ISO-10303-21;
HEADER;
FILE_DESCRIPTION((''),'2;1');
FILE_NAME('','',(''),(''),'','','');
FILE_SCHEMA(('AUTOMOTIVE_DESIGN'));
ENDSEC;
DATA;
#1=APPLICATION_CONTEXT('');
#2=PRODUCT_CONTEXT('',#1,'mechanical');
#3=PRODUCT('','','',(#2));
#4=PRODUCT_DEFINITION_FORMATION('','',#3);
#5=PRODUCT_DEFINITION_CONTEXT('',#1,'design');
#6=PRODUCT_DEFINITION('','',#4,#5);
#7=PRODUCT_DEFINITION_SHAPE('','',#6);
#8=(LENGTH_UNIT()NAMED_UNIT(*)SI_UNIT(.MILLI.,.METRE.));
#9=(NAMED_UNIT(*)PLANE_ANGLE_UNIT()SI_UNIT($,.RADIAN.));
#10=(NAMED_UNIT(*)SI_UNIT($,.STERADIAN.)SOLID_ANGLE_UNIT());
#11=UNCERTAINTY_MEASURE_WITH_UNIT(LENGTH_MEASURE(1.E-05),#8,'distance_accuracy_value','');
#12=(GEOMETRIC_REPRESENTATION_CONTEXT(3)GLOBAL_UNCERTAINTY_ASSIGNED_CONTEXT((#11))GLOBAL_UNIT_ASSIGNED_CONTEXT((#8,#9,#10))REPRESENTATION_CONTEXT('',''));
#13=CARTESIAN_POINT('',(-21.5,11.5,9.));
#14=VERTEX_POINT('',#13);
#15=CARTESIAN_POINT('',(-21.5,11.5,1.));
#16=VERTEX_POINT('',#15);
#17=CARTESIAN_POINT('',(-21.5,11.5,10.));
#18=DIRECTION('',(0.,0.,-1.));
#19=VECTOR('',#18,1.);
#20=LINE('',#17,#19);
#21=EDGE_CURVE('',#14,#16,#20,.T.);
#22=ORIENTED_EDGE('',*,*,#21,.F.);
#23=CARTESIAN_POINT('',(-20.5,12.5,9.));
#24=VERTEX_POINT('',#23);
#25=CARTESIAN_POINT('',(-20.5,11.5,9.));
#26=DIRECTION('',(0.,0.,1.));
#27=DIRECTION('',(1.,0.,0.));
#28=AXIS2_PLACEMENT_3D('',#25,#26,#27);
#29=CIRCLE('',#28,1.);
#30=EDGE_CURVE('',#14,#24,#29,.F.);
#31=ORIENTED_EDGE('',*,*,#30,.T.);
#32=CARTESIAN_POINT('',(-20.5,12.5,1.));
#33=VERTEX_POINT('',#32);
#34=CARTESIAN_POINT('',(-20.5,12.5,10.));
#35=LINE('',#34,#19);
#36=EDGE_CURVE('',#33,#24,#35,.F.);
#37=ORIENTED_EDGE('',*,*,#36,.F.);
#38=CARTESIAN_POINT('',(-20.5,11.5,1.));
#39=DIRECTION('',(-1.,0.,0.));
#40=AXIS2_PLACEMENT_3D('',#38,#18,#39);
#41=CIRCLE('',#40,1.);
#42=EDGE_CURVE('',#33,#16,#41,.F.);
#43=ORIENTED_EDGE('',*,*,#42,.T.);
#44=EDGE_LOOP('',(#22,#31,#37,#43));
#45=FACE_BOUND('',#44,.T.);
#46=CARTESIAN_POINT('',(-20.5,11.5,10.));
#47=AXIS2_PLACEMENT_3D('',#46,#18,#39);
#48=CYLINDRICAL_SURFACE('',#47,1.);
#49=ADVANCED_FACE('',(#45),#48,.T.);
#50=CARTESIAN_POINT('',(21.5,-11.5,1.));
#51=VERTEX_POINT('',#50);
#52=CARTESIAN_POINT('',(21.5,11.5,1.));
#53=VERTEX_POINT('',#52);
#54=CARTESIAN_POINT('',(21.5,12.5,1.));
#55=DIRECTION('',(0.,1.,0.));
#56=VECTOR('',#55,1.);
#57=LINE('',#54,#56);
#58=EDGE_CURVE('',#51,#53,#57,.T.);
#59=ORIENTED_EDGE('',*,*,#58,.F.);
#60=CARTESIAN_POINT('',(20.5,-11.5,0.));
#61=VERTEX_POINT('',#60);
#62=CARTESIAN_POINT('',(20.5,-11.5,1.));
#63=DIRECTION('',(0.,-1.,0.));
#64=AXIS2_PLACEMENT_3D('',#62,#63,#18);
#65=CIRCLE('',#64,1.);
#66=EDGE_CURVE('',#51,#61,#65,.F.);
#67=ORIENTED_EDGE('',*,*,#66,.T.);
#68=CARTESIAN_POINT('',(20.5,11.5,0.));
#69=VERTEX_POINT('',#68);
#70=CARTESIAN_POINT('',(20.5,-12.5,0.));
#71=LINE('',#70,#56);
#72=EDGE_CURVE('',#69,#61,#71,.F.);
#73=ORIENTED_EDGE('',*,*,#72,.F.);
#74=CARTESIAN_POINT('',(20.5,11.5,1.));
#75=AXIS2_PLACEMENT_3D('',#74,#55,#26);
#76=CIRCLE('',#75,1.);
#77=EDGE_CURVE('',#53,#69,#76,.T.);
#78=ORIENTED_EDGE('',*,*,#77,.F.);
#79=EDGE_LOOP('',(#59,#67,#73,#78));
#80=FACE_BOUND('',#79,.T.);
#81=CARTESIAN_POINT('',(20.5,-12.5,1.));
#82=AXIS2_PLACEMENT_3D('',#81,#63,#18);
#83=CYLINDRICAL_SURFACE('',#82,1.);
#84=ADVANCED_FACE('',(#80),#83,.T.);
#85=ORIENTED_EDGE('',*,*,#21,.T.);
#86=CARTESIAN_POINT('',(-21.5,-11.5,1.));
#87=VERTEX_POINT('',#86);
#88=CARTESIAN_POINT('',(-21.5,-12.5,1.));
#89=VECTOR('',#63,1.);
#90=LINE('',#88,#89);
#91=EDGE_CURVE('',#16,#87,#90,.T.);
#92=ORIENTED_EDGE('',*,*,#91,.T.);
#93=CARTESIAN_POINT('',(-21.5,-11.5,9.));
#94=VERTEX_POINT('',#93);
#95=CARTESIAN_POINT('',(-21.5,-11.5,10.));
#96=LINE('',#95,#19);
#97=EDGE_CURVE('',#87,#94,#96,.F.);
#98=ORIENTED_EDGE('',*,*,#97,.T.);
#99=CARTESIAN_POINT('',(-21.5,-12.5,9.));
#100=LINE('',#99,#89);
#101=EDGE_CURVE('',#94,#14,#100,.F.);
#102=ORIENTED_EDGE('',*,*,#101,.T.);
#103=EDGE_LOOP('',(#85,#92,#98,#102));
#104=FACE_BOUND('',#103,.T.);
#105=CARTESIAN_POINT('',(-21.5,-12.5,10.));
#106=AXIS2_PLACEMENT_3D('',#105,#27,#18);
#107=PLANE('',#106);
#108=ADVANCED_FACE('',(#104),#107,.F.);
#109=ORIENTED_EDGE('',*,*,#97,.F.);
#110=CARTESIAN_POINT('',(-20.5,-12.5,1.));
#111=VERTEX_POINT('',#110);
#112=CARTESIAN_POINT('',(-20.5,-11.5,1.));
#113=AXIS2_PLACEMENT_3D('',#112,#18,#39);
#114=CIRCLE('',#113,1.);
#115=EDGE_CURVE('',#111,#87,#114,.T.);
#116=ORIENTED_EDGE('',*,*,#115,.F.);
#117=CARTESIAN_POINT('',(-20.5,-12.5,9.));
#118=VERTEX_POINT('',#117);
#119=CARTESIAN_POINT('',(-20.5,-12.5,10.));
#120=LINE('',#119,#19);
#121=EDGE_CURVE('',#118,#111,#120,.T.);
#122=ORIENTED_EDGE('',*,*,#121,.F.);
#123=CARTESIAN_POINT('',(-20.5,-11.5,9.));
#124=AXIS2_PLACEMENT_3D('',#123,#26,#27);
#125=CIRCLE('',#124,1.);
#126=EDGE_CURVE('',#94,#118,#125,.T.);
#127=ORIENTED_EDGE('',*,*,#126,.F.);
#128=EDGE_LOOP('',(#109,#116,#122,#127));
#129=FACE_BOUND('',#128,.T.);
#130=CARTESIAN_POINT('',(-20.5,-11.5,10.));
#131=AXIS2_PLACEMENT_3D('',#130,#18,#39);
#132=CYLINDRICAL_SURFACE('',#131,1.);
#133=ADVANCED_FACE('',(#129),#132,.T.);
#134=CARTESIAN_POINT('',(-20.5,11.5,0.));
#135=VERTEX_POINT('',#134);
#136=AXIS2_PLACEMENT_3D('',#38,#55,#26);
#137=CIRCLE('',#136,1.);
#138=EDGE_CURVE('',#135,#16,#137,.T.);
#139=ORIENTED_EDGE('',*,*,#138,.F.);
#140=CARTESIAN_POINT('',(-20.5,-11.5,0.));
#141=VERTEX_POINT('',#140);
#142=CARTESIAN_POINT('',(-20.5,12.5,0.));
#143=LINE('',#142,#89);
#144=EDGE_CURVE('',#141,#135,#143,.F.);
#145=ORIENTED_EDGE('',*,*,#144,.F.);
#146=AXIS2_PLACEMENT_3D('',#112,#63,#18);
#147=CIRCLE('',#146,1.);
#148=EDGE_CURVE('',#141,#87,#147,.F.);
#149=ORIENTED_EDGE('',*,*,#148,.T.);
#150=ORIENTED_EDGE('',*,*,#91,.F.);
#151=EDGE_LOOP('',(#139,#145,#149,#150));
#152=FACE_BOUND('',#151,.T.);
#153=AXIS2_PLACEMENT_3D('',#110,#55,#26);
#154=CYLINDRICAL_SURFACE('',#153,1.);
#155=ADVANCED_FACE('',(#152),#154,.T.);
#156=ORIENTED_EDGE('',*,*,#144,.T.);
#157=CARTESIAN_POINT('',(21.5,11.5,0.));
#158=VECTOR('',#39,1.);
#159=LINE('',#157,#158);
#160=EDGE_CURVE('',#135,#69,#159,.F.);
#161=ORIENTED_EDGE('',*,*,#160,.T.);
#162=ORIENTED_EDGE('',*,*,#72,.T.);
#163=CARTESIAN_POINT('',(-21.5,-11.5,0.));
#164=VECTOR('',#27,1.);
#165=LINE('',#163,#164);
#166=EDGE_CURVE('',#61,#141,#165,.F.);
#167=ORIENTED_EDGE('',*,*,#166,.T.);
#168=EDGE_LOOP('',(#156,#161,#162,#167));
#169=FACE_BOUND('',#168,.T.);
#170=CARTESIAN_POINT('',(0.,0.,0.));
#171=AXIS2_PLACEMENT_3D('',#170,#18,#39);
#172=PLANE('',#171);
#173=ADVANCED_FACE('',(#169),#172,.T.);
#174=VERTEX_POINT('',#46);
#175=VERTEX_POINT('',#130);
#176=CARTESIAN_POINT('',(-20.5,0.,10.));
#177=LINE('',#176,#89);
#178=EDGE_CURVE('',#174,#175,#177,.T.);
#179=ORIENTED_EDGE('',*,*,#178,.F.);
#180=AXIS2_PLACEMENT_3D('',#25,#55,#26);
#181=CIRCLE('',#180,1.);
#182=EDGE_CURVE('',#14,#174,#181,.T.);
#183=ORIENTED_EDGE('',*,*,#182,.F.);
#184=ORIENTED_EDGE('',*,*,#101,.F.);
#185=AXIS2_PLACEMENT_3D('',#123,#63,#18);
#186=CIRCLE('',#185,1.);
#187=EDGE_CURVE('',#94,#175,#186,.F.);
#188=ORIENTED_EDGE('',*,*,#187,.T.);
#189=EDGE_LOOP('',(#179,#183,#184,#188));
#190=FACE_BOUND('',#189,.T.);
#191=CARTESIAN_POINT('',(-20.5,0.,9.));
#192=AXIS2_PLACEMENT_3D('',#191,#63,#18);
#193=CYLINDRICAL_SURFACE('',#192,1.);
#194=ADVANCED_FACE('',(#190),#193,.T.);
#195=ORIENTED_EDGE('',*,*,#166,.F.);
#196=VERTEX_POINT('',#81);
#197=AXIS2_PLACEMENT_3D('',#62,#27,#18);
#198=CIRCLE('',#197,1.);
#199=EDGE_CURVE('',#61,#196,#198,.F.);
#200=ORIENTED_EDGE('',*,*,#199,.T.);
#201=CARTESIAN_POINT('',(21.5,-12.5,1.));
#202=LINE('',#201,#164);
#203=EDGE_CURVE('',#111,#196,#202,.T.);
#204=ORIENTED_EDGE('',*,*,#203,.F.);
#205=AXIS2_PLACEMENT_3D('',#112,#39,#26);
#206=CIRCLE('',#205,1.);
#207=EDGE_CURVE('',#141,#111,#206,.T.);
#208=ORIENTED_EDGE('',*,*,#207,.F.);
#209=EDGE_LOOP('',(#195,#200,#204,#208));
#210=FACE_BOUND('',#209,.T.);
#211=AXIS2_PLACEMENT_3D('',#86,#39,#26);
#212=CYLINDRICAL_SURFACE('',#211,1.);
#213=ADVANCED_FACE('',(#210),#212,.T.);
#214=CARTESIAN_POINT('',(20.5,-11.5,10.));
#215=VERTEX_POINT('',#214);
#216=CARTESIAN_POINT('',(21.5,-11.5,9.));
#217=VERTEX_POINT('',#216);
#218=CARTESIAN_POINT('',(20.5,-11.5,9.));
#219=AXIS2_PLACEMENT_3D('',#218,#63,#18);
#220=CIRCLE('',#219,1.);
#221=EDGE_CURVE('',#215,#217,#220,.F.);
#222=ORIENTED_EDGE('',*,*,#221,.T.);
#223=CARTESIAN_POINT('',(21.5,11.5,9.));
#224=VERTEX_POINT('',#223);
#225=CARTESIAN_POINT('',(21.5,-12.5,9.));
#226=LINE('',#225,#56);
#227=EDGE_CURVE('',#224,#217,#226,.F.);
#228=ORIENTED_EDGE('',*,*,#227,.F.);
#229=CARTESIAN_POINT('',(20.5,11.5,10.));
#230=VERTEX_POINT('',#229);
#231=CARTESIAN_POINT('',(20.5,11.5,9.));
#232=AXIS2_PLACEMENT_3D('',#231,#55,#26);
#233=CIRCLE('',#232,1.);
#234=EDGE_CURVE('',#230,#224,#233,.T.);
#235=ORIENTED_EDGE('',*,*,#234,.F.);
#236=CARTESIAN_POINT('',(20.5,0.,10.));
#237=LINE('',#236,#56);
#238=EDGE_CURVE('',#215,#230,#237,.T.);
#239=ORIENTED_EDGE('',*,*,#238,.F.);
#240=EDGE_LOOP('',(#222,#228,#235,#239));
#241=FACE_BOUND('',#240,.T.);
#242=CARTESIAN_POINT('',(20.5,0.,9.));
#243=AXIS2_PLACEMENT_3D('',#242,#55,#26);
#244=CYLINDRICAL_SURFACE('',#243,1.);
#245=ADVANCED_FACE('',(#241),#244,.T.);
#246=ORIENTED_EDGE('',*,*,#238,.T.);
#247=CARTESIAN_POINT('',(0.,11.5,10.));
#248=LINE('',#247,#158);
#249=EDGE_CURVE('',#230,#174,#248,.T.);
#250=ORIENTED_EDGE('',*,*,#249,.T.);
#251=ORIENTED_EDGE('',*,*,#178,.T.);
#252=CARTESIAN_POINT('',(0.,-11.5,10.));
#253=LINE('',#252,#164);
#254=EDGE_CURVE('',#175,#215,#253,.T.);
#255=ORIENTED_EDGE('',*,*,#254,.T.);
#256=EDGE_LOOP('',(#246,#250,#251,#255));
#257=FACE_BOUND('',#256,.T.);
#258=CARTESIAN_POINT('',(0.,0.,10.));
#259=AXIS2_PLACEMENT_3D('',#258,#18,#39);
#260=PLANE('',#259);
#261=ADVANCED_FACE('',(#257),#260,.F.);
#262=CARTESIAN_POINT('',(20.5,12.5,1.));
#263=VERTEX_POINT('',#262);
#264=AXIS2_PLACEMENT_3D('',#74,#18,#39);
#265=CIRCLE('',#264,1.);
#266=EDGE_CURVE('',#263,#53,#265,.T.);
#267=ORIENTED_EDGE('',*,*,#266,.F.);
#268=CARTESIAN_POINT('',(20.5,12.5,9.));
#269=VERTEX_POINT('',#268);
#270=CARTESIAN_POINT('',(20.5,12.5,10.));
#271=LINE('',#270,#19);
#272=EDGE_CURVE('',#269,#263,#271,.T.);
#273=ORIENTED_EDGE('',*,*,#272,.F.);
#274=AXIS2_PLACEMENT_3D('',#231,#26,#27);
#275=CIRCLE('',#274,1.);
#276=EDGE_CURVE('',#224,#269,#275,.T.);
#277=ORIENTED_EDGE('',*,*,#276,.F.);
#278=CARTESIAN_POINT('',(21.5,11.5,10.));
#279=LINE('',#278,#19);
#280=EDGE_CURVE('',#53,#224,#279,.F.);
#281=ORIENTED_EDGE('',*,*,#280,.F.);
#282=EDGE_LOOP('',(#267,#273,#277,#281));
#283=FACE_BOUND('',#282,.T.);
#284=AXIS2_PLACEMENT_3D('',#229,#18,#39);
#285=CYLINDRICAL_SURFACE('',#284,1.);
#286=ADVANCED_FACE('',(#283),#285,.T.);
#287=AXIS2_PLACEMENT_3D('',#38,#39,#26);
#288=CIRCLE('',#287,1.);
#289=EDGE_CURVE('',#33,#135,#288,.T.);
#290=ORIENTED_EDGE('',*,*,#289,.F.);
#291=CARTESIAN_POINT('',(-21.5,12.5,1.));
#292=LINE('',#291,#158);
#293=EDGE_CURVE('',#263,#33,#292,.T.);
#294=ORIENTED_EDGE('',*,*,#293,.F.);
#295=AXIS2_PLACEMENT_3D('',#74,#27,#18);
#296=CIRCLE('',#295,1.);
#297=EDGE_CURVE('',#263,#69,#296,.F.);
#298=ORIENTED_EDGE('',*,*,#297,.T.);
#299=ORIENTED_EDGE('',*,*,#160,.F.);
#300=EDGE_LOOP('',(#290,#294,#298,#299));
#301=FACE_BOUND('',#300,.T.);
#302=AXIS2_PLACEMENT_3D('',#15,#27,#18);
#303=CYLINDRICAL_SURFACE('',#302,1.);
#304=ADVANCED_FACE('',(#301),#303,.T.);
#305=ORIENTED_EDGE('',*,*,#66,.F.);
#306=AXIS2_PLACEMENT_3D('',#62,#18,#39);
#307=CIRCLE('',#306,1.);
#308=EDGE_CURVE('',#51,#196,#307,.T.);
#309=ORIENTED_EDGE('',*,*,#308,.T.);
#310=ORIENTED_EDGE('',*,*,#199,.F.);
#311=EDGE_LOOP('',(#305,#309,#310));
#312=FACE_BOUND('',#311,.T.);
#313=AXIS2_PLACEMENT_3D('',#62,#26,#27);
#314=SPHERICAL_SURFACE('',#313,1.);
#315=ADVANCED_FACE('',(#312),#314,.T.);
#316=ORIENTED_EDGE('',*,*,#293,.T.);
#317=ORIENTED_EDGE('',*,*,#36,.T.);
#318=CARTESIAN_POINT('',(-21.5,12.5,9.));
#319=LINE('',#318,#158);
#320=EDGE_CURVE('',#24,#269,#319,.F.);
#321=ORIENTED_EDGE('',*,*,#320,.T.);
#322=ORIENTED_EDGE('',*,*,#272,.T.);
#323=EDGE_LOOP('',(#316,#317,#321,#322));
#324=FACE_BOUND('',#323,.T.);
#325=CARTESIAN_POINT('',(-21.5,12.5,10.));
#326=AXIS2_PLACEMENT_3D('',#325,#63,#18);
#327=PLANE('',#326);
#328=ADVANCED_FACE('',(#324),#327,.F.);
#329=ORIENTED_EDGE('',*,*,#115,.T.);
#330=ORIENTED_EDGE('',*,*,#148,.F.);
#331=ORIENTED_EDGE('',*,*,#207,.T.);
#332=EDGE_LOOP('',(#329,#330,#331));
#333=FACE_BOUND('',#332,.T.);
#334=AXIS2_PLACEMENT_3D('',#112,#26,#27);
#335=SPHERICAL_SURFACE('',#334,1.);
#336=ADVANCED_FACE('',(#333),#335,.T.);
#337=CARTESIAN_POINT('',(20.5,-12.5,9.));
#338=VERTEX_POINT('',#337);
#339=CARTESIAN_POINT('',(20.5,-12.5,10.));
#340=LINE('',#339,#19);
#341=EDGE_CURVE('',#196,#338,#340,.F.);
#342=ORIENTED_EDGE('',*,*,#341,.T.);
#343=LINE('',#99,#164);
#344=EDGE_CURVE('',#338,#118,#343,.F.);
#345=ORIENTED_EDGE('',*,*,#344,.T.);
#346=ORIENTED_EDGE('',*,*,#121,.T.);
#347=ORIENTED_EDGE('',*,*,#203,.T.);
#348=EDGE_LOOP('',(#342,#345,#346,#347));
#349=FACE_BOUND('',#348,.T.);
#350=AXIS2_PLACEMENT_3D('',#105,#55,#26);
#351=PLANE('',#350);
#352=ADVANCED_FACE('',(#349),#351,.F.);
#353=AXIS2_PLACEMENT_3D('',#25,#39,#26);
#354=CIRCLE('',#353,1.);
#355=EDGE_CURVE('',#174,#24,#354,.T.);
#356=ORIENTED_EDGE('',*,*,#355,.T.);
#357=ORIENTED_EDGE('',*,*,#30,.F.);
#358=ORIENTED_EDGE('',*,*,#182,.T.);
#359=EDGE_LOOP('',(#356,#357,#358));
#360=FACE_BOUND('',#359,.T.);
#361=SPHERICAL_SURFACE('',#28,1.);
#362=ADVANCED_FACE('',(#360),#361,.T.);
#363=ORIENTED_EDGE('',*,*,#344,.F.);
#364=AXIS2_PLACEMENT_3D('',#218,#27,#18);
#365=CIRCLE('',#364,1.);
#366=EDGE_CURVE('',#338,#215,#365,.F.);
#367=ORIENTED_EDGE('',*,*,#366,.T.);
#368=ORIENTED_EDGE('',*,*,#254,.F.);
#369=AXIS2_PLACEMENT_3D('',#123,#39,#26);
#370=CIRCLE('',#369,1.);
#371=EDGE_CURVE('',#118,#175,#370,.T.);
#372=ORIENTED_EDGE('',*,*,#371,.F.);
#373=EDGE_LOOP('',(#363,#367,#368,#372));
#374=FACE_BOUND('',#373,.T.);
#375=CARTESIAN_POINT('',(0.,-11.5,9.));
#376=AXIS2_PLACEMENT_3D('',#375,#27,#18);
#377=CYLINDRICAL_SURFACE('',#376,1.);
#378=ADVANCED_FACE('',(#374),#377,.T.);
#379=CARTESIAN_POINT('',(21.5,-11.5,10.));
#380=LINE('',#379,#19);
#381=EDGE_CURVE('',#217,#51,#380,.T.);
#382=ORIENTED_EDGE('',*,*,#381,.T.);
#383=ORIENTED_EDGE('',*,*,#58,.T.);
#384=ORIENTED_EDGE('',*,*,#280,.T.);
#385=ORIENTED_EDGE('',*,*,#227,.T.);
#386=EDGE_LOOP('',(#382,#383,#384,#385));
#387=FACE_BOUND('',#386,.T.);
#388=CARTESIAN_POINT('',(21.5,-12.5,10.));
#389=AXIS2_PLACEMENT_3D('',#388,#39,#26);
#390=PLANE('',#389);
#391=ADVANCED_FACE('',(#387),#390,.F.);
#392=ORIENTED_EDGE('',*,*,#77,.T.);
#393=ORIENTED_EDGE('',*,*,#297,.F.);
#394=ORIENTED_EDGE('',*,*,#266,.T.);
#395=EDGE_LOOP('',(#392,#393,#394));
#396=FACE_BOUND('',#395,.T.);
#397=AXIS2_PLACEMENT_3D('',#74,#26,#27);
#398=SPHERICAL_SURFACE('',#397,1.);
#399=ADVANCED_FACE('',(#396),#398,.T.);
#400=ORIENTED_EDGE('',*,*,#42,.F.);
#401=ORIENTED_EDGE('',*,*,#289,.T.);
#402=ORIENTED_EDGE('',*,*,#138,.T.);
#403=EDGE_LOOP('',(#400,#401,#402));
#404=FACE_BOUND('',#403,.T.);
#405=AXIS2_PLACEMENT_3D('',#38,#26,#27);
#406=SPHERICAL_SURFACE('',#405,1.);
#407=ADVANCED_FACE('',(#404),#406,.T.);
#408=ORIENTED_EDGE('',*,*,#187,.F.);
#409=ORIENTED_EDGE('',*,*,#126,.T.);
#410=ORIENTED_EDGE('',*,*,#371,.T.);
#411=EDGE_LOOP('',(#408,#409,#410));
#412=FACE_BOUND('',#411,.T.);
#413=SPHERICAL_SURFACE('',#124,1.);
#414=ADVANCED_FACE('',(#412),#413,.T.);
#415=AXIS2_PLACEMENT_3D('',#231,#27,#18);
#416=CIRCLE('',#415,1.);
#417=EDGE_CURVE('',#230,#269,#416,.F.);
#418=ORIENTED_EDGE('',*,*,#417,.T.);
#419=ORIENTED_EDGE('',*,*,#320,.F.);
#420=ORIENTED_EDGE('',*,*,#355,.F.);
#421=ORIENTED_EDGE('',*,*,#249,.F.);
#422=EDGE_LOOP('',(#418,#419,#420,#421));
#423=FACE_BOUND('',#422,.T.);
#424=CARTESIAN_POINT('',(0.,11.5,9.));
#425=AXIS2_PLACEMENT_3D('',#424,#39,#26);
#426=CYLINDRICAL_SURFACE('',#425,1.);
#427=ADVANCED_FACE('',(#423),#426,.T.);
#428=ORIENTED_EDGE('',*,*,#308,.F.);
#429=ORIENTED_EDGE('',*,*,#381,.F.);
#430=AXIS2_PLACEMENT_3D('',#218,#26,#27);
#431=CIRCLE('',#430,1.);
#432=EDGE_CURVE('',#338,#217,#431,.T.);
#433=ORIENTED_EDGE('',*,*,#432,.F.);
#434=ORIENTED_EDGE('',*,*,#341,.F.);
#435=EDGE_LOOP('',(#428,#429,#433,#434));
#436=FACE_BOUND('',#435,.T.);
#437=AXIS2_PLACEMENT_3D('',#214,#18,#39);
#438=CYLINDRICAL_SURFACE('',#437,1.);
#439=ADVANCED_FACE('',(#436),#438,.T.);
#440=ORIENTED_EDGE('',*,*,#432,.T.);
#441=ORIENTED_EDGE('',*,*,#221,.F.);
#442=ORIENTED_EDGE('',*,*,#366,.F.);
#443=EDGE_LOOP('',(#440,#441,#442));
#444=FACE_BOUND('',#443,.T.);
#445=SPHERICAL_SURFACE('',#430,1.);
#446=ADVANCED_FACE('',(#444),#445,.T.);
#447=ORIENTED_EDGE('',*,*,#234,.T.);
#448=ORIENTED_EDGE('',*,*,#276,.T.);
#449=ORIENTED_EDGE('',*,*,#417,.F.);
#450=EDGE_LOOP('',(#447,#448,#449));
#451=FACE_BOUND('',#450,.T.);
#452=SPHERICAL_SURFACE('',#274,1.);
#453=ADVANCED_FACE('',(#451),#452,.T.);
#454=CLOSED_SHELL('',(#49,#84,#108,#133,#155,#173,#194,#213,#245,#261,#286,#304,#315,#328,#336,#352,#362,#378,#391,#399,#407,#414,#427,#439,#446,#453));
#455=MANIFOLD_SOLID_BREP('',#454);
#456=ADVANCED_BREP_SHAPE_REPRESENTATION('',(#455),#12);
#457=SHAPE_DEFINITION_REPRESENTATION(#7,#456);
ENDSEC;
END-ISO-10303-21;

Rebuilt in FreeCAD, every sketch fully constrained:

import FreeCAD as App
import Part
import Sketcher
from FreeCAD import Vector


def add_polygon(sketch, points):
    """Adds a closed chain of lines whose ends are joined by coincident constraints."""
    first, n = sketch.GeometryCount, len(points)
    for a, b in zip(points, points[1:] + points[:1]):
        sketch.addGeometry(Part.LineSegment(App.Vector(*a, 0), App.Vector(*b, 0)), False)
    for i in range(n):
        sketch.addConstraint(Sketcher.Constraint("Coincident", first + i, 2, first + (i + 1) % n, 1))

doc = App.newDocument("Part")
body = doc.addObject("PartDesign::Body", "Body")

# Sketch on XY plane
sketch1 = body.newObject("Sketcher::SketchObject", "Sketch")
sketch1.AttachmentSupport = (doc.getObject("XY_Plane"), [""])
sketch1.MapMode = "FlatFace"
add_polygon(sketch1, [(-21.5, 12.5), (-21.5, -12.5), (21.5, -12.5), (21.5, 12.5)])  # lines 0-3
sketch1.addConstraint(Sketcher.Constraint("Vertical", 0))
sketch1.addConstraint(Sketcher.Constraint("Horizontal", 1))
sketch1.addConstraint(Sketcher.Constraint("Vertical", 2))
sketch1.addConstraint(Sketcher.Constraint("Horizontal", 3))
sketch1.addConstraint(Sketcher.Constraint("Symmetric", 0, 2, 2, 2, -1, 1))
sketch1.addConstraint(Sketcher.Constraint("DistanceX", 1, 1, 1, 2, 43.0))
sketch1.addConstraint(Sketcher.Constraint("DistanceY", 0, 2, 0, 1, 25.0))
pad1 = body.newObject("PartDesign::Pad", "Pad")
pad1.Profile = sketch1
pad1.Length = 10
doc.recompute()

fillet = body.newObject("PartDesign::Fillet", "Fillet")
fillet.Base = (pad1, ["Edge1"])
fillet.UseAllEdges = True
fillet.Radius = 1

doc.recompute()
